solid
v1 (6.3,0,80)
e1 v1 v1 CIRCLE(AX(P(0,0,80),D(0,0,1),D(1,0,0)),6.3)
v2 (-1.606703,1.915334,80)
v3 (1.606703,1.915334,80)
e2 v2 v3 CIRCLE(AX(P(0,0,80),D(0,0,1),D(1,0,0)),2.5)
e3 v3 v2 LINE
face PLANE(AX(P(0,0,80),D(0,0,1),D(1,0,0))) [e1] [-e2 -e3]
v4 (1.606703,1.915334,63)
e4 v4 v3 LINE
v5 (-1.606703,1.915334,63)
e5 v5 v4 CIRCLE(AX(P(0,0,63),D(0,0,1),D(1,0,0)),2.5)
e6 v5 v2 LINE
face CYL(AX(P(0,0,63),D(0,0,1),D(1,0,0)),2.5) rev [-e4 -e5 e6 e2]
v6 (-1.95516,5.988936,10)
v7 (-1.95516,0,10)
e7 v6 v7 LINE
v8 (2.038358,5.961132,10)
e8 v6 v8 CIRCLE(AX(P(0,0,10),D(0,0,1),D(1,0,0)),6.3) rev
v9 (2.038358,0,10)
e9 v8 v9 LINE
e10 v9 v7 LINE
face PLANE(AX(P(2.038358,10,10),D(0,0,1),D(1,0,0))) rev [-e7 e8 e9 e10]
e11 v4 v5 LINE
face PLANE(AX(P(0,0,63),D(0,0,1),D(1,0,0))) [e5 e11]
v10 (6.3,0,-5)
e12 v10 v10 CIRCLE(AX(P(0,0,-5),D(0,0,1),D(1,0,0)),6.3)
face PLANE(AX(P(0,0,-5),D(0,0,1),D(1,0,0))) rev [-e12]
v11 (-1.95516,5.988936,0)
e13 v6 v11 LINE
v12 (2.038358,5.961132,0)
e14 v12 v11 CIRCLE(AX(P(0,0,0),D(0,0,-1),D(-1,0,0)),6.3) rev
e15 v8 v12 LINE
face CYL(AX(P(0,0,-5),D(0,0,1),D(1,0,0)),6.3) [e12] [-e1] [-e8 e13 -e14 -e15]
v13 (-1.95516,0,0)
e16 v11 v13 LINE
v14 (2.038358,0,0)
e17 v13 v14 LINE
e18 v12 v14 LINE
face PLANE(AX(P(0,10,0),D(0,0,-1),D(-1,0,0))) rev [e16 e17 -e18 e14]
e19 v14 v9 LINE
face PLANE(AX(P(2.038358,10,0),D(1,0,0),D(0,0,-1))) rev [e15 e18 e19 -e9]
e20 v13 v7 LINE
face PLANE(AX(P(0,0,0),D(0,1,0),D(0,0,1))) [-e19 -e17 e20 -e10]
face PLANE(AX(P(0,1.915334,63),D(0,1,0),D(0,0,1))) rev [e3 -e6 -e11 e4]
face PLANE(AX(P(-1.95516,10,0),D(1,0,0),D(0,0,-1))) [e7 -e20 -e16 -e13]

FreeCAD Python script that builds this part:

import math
import FreeCAD as App
import Part
import Sketcher

V = App.Vector


def add_polygon(sketch, points):
    """Adds a closed chain of lines whose ends are joined by coincident constraints."""
    first, n = sketch.GeometryCount, len(points)
    for a, b in zip(points, points[1:] + points[:1]):
        sketch.addGeometry(Part.LineSegment(App.Vector(*a, 0), App.Vector(*b, 0)), False)
    for i in range(n):
        sketch.addConstraint(Sketcher.Constraint("Coincident", first + i, 2, first + (i + 1) % n, 1))

doc = App.newDocument("Part")
body = doc.addObject("PartDesign::Body", "Body")

# Sketch on XY plane
sketch1 = body.newObject("Sketcher::SketchObject", "Sketch")
sketch1.AttachmentSupport = (doc.getObject("XY_Plane"), [""])
sketch1.MapMode = "FlatFace"
sketch1.addGeometry(Part.Circle(V(0, 0, 0), V(0, 0, 1), 6), False)
sketch1.addConstraint([
    Sketcher.Constraint("Coincident", 0, 3, -1, 1),
    Sketcher.Constraint("Diameter", 0, 12.6),
])
pad1 = body.newObject("PartDesign::Pad", "Pad")
pad1.Profile = sketch1
pad1.Type = "TwoLengths"
pad1.Length = 80
pad1.Length2 = 5

# Sketch on XZ plane
sketch2 = body.newObject("Sketcher::SketchObject", "Sketch001")
sketch2.AttachmentSupport = (doc.getObject("XZ_Plane"), [""])
sketch2.MapMode = "FlatFace"
add_polygon(sketch2, [(-2, 0), (-2, 10), (2, 10), (2, 0)])  # lines 0-3
sketch2.addConstraint([
    Sketcher.Constraint("Vertical", 0),
    Sketcher.Constraint("Horizontal", 1),
    Sketcher.Constraint("Vertical", 2),
    Sketcher.Constraint("Horizontal", 3),
    Sketcher.Constraint("PointOnObject", 2, 2, -1),
    Sketcher.Constraint("DistanceY", 0, 1, 0, 2, 10.0),
    Sketcher.Constraint("DistanceX", 1, 1, 1, 2, 3.993518),
    Sketcher.Constraint("DistanceX", 0, 2, -1, 1, 1.95516),
])
pocket1 = body.newObject("PartDesign::Pocket", "Pocket")
pocket1.Profile = sketch2
pocket1.Length = 10

# Sketch on XY plane
sketch3 = body.newObject("Sketcher::SketchObject", "Sketch002")
sketch3.AttachmentSupport = (doc.getObject("XY_Plane"), [""])
sketch3.MapMode = "FlatFace"
sketch3.AttachmentOffset = App.Placement(V(0, 0, 80), App.Rotation())
sketch3.addGeometry([
    Part.LineSegment(V(1.6, 1.9, 0), V(-1.6, 1.9, 0)),
    Part.ArcOfCircle(Part.Circle(V(0, 0, 0), V(0, 0, 1), 2.5), math.radians(130), math.radians(360)),
    Part.ArcOfCircle(Part.Circle(V(0, 0, 0), V(0, 0, 1), 2.5), math.radians(0), math.radians(50)),
], False)
sketch3.addConstraint([
    Sketcher.Constraint("Coincident", 0, 2, 1, 1),
    Sketcher.Constraint("Tangent", 1, 2, 2, 1),
    Sketcher.Constraint("Coincident", 2, 2, 0, 1),
    Sketcher.Constraint("Horizontal", 0),
    Sketcher.Constraint("Coincident", 1, 3, -1, 1),
    Sketcher.Constraint("Equal", 1, 2),
    Sketcher.Constraint("PointOnObject", 1, 2, -1),
    Sketcher.Constraint("Radius", 1, 2.5),
    Sketcher.Constraint("DistanceX", 0, 2, 0, 1, 3.213406),
])
pocket2 = body.newObject("PartDesign::Pocket", "Pocket001")
pocket2.Profile = sketch3
pocket2.Length = 17

doc.recompute()
